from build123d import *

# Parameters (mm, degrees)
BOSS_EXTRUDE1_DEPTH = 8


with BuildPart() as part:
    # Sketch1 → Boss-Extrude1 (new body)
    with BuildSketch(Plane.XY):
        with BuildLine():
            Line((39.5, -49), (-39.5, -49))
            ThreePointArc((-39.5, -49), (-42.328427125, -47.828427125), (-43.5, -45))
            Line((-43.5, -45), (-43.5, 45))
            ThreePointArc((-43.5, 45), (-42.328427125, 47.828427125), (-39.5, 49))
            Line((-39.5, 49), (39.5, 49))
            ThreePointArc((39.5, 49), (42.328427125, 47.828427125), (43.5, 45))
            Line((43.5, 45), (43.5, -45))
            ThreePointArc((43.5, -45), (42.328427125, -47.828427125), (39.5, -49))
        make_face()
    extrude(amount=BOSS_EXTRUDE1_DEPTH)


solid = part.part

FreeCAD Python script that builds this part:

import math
import FreeCAD as App
import Part
import Sketcher

V = App.Vector

doc = App.newDocument("Part")
params = doc.addObject("Spreadsheet::Sheet", "Params")
for row, (alias, value) in enumerate([
    ("sketch1_radius", "4 mm"),
    ("sketch1_width", "79 mm"),
    ("sketch1_height", "90 mm"),
    ("pad1_length", "8 mm"),
], start=1):
    params.set(f"A{row}", alias)
    params.set(f"B{row}", "=" + value)
    params.setAlias(f"B{row}", alias)

body = doc.addObject("PartDesign::Body", "Body")

sketch1 = body.newObject("Sketcher::SketchObject", "Sketch")
sketch1.AttachmentSupport = (doc.getObject("XY_Plane"), [""])
sketch1.MapMode = "FlatFace"
sketch1.addGeometry([
    Part.LineSegment(V(-39.5, -49, 0), V(39.5, -49, 0)),
    Part.ArcOfCircle(Part.Circle(V(39.5, -45, 0), V(0, 0, 1), 4), math.radians(-90), math.radians(0)),
    Part.LineSegment(V(43.5, -45, 0), V(43.5, 45, 0)),
    Part.ArcOfCircle(Part.Circle(V(39.5, 45, 0), V(0, 0, 1), 4), math.radians(0), math.radians(90)),
    Part.LineSegment(V(39.5, 49, 0), V(-39.5, 49, 0)),
    Part.ArcOfCircle(Part.Circle(V(-39.5, 45, 0), V(0, 0, 1), 4), math.radians(90), math.radians(180)),
    Part.LineSegment(V(-43.5, 45, 0), V(-43.5, -45, 0)),
    Part.ArcOfCircle(Part.Circle(V(-39.5, -45, 0), V(0, 0, 1), 4), math.radians(180), math.radians(270)),
], False)
sketch1.addConstraint([
    Sketcher.Constraint("Tangent", 0, 2, 1, 1),
    Sketcher.Constraint("Tangent", 1, 2, 2, 1),
    Sketcher.Constraint("Tangent", 2, 2, 3, 1),
    Sketcher.Constraint("Tangent", 3, 2, 4, 1),
    Sketcher.Constraint("Tangent", 4, 2, 5, 1),
    Sketcher.Constraint("Tangent", 5, 2, 6, 1),
    Sketcher.Constraint("Tangent", 6, 2, 7, 1),
    Sketcher.Constraint("Tangent", 7, 2, 0, 1),
    Sketcher.Constraint("Horizontal", 0),
    Sketcher.Constraint("Vertical", 2),
    Sketcher.Constraint("Horizontal", 4),
    Sketcher.Constraint("Vertical", 6),
    Sketcher.Constraint("Equal", 1, 3),
    Sketcher.Constraint("Equal", 3, 5),
    Sketcher.Constraint("Equal", 5, 7),
    Sketcher.Constraint("Symmetric", 1, 3, 5, 3, -1, 1),
    Sketcher.Constraint("Radius", 1, 4.0),
    Sketcher.Constraint("DistanceX", 0, 1, 0, 2, 79.0),
    Sketcher.Constraint("DistanceY", 2, 1, 2, 2, 90.0),
])
sketch1.setExpression("Constraints[16]", "Params.sketch1_radius")
sketch1.setExpression("Constraints[17]", "Params.sketch1_width")
sketch1.setExpression("Constraints[18]", "Params.sketch1_height")
pad1 = body.newObject("PartDesign::Pad", "Pad")
pad1.Profile = sketch1
pad1.setExpression("Length", "Params.pad1_length")

doc.recompute()
